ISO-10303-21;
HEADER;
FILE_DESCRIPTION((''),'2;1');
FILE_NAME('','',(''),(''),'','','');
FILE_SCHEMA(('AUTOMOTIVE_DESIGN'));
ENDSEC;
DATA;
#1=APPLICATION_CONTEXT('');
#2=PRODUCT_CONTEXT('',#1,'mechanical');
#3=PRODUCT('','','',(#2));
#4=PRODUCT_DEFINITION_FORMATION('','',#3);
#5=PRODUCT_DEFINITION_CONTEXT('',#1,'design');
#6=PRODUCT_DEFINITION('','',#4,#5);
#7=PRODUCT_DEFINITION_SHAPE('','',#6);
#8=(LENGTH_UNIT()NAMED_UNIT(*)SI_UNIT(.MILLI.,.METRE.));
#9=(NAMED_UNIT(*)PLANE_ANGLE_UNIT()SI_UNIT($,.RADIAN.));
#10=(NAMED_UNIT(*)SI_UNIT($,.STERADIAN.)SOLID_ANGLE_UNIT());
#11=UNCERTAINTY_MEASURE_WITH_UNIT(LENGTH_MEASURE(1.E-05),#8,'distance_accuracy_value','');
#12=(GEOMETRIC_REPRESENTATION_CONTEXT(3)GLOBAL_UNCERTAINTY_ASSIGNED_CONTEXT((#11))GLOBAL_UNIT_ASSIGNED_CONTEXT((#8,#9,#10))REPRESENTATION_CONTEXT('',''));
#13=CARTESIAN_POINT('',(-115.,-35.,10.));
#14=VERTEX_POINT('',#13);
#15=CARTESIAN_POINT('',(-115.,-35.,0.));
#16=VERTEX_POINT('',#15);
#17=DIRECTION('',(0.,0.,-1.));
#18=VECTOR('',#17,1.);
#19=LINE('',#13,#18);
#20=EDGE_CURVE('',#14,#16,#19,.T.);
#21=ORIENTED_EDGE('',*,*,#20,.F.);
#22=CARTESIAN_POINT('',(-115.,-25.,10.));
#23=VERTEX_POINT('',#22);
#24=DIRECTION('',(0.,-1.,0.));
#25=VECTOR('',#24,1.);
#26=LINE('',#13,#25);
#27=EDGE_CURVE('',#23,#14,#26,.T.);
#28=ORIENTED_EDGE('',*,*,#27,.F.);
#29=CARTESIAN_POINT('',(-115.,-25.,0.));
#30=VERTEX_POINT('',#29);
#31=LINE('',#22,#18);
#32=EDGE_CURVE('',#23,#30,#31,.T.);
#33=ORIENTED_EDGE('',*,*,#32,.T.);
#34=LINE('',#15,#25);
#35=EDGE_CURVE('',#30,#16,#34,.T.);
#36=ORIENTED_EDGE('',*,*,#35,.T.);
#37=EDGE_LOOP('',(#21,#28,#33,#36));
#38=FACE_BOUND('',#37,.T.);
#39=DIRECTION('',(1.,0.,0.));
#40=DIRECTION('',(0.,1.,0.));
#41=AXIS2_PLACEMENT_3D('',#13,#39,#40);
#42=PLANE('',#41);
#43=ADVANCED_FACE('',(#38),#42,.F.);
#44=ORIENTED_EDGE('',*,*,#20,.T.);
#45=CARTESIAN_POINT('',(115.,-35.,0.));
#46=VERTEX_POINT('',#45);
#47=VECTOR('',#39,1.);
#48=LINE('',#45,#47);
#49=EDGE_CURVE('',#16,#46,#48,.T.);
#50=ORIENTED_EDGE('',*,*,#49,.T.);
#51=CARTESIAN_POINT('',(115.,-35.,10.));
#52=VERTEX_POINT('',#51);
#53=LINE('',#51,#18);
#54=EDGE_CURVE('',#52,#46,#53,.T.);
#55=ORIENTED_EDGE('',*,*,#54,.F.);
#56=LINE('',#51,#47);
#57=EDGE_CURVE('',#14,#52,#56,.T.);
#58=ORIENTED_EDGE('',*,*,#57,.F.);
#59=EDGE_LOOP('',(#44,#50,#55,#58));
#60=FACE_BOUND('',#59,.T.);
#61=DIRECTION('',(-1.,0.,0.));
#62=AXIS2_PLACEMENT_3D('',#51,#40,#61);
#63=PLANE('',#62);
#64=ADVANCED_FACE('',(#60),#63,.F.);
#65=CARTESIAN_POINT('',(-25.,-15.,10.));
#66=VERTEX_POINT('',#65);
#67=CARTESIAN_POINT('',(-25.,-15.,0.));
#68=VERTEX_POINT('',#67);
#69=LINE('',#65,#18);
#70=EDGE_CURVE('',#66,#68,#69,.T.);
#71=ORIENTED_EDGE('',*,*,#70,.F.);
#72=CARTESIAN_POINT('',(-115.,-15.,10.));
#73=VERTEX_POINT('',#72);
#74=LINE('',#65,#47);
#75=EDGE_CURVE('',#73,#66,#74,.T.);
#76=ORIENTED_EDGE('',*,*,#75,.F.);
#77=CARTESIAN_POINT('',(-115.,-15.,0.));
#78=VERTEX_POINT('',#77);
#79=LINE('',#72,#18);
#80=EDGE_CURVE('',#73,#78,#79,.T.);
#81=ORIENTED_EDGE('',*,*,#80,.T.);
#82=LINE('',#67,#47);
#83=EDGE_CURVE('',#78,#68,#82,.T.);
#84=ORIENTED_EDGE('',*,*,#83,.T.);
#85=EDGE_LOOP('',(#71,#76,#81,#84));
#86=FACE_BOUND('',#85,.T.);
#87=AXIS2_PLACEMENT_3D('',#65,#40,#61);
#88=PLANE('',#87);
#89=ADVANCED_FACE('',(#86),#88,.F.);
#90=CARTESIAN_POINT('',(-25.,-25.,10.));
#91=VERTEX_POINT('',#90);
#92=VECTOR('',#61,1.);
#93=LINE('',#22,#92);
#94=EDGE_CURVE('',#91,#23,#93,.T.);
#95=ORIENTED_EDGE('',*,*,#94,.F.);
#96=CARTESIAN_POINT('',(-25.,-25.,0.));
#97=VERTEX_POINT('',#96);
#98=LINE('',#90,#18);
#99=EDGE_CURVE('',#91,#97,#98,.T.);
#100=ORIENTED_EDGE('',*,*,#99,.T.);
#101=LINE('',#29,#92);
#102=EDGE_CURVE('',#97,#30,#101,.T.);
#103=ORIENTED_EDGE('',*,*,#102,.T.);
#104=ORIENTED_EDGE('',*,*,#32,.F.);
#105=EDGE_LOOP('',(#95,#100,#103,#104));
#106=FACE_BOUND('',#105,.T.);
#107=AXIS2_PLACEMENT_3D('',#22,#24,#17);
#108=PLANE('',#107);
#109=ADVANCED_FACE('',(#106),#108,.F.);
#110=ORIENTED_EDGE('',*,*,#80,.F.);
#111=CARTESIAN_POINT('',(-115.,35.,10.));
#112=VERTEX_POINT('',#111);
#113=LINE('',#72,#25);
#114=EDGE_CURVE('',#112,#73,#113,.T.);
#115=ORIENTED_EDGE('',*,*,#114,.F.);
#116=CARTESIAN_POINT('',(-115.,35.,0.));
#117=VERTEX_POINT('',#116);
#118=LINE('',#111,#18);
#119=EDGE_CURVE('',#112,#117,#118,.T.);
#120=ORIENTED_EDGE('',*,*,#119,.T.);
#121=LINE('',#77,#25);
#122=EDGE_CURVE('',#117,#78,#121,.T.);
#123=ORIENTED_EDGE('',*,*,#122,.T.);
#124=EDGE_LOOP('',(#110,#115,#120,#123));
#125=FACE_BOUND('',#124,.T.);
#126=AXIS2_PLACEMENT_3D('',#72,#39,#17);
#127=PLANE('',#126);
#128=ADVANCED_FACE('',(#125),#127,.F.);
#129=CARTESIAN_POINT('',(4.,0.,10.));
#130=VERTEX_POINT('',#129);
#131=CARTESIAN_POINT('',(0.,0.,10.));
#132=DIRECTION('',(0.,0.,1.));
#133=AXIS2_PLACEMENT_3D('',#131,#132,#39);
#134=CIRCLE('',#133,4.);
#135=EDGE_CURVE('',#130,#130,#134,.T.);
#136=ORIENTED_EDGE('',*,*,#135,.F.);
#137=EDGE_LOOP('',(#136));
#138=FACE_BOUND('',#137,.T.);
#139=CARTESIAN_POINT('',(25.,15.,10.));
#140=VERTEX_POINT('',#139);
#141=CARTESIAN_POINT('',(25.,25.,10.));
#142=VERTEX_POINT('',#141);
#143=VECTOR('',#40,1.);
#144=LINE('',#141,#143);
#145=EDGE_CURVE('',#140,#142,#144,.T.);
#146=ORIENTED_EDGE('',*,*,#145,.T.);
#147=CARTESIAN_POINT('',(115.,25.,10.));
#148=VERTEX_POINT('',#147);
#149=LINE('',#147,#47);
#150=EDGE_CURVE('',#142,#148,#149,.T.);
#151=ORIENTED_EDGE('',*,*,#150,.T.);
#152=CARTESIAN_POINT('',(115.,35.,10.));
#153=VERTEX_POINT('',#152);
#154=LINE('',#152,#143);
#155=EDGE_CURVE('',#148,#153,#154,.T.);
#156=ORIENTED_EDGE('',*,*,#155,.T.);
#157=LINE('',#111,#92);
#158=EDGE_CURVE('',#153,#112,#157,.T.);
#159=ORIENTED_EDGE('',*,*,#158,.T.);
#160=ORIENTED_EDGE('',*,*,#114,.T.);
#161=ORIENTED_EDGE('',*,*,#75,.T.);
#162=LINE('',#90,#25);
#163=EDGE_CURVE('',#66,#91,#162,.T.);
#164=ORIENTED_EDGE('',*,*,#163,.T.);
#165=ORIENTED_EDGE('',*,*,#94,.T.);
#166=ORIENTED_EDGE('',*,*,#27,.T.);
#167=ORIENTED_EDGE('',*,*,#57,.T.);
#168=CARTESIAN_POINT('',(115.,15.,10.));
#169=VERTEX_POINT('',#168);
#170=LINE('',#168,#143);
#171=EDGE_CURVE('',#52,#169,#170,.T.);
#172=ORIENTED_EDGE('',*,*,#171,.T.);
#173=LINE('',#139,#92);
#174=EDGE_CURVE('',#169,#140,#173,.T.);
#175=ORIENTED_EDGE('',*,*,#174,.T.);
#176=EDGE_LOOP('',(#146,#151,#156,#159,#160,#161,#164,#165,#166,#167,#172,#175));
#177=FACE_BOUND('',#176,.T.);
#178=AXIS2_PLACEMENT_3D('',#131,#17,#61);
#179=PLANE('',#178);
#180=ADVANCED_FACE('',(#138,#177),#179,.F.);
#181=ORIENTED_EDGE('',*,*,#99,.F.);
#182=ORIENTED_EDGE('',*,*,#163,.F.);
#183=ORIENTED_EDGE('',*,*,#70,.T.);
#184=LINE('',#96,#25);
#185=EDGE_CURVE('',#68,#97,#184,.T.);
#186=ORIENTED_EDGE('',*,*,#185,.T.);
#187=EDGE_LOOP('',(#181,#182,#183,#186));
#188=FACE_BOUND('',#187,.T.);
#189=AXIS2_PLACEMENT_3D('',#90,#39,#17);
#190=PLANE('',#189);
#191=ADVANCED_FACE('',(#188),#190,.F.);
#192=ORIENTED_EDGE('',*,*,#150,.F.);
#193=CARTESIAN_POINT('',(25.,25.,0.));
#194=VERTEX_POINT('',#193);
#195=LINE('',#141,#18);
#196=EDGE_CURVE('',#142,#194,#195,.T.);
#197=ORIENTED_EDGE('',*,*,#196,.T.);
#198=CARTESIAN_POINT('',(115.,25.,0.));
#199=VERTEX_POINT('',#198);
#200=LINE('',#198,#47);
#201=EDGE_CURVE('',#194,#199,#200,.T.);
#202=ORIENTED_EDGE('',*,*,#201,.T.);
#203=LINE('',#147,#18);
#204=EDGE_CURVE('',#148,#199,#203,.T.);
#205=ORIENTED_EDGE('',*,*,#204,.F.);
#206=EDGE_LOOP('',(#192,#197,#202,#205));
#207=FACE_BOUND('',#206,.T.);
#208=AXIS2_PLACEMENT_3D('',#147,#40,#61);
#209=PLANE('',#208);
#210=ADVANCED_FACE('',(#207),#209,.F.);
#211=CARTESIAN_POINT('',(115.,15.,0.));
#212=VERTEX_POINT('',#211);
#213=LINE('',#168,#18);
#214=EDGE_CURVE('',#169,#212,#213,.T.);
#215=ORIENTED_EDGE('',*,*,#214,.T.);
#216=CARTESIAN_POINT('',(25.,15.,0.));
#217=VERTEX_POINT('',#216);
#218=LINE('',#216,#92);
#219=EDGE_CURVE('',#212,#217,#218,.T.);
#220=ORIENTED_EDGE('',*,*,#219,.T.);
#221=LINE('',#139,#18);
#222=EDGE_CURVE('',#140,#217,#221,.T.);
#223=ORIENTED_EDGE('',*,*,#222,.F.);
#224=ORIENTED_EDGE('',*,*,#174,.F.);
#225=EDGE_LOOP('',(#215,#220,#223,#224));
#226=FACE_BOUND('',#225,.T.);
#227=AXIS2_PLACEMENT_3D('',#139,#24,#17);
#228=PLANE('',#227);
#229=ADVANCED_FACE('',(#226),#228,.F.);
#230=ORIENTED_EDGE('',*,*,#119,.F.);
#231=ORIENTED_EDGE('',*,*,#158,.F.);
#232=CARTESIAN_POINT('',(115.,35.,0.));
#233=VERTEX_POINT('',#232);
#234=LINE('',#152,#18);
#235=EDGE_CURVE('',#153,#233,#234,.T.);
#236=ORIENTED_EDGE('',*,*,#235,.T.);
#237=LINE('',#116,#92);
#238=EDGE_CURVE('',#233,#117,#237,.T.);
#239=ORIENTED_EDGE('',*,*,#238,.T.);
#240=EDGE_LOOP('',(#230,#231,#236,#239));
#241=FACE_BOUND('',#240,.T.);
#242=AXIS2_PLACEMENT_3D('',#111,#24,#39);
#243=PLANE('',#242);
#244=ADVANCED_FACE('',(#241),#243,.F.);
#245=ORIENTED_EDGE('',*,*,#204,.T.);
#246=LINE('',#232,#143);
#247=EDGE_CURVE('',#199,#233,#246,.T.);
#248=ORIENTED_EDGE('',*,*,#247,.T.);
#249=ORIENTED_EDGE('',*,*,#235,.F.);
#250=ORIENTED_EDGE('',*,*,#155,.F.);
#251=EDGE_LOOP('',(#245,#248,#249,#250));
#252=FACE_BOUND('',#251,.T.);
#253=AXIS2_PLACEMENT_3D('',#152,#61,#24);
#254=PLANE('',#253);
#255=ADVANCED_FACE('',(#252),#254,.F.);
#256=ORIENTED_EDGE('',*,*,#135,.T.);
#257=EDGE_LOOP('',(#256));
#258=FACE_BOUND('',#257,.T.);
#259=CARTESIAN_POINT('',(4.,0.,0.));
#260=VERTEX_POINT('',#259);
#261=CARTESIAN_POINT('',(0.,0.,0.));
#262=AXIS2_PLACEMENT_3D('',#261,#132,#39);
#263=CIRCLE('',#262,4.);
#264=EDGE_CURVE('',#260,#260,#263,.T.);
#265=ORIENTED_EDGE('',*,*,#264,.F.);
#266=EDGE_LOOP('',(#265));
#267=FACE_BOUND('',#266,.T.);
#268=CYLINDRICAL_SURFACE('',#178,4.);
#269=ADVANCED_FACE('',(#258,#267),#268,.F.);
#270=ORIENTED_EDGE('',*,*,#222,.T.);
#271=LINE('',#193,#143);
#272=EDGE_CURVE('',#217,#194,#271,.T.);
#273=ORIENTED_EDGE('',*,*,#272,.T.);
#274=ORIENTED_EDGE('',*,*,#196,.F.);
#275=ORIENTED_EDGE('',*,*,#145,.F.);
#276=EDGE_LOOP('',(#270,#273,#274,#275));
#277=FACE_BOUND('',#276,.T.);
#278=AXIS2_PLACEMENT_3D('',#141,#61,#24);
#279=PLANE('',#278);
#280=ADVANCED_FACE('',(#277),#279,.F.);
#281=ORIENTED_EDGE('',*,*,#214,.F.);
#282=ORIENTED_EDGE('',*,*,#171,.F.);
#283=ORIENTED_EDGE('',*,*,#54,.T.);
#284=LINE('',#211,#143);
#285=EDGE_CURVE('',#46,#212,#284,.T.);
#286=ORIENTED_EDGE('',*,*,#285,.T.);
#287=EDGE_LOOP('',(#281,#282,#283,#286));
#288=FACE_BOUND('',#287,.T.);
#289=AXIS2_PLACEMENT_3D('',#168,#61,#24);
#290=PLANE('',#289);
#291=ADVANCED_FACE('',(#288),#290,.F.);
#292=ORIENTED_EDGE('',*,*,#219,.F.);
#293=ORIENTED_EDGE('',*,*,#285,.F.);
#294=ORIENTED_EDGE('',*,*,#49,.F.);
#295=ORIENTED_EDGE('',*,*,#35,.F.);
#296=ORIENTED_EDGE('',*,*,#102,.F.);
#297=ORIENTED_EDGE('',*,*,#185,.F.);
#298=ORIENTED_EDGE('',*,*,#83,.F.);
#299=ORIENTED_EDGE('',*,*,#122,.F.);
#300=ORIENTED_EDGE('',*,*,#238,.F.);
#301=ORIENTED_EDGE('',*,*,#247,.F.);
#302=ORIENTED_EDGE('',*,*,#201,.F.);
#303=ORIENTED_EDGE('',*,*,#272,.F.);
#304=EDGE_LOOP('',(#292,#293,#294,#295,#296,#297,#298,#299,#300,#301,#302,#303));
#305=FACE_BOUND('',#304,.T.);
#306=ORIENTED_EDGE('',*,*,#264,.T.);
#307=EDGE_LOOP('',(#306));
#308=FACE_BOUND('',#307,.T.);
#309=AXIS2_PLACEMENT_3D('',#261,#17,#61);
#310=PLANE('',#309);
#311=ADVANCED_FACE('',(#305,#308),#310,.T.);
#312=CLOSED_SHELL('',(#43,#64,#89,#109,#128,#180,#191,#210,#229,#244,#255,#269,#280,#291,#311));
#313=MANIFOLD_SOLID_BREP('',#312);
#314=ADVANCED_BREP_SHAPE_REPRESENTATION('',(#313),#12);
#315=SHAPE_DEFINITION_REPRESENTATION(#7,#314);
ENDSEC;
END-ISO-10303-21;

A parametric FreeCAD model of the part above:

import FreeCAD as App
import Part
import Sketcher
Q = App.Units.Quantity

doc = App.newDocument("Part")
body = doc.addObject("PartDesign::Body", "Body")

# Sketch on XY plane
sketch1 = body.newObject("Sketcher::SketchObject", "Sketch")
sketch1.AttachmentSupport = (doc.getObject("XY_Plane"), [""])
sketch1.MapMode = "FlatFace"
sketch1.addGeometry([
    Part.LineSegment(App.Vector(115, 35, 0), App.Vector(-115, 35, 0)),  # 0
    Part.LineSegment(App.Vector(-115, 35, 0), App.Vector(-115, -15, 0)),  # 1
    Part.LineSegment(App.Vector(-115, -15, 0), App.Vector(-25, -15, 0)),  # 2
    Part.LineSegment(App.Vector(-25, -15, 0), App.Vector(-25, -25, 0)),  # 3
    Part.LineSegment(App.Vector(-25, -25, 0), App.Vector(-115, -25, 0)),  # 4
    Part.LineSegment(App.Vector(-115, -25, 0), App.Vector(-115, -35, 0)),  # 5
    Part.LineSegment(App.Vector(-115, -35, 0), App.Vector(115, -35, 0)),  # 6
    Part.LineSegment(App.Vector(115, -35, 0), App.Vector(115, 15, 0)),  # 7
    Part.LineSegment(App.Vector(115, 15, 0), App.Vector(25, 15, 0)),  # 8
    Part.LineSegment(App.Vector(25, 15, 0), App.Vector(25, 25, 0)),  # 9
    Part.LineSegment(App.Vector(25, 25, 0), App.Vector(115, 25, 0)),  # 10
    Part.LineSegment(App.Vector(115, 25, 0), App.Vector(115, 35, 0)),  # 11
    Part.Circle(App.Vector(0, 0, 0), App.Vector(0, 0, 1), 4),  # 12
], False)
sketch1.addConstraint([
    Sketcher.Constraint("Coincident", 0, 2, 1, 1),
    Sketcher.Constraint("Coincident", 1, 2, 2, 1),
    Sketcher.Constraint("Coincident", 2, 2, 3, 1),
    Sketcher.Constraint("Coincident", 3, 2, 4, 1),
    Sketcher.Constraint("Coincident", 4, 2, 5, 1),
    Sketcher.Constraint("Coincident", 5, 2, 6, 1),
    Sketcher.Constraint("Coincident", 6, 2, 7, 1),
    Sketcher.Constraint("Coincident", 7, 2, 8, 1),
    Sketcher.Constraint("Coincident", 8, 2, 9, 1),
    Sketcher.Constraint("Coincident", 9, 2, 10, 1),
    Sketcher.Constraint("Coincident", 10, 2, 11, 1),
    Sketcher.Constraint("Coincident", 11, 2, 0, 1),
    Sketcher.Constraint("Horizontal", 0),
    Sketcher.Constraint("Vertical", 1),
    Sketcher.Constraint("Horizontal", 2),
    Sketcher.Constraint("Vertical", 3),
    Sketcher.Constraint("Horizontal", 4),
    Sketcher.Constraint("Vertical", 5),
    Sketcher.Constraint("Horizontal", 6),
    Sketcher.Constraint("Vertical", 7),
    Sketcher.Constraint("Horizontal", 8),
    Sketcher.Constraint("Vertical", 9),
    Sketcher.Constraint("Horizontal", 10),
    Sketcher.Constraint("Vertical", 11),
    Sketcher.Constraint("Coincident", 12, 3, -1, 1),
    Sketcher.Constraint("Symmetric", 0, 2, 6, 2, -1, 1),
    Sketcher.Constraint("Symmetric", 2, 2, 8, 2, -1, 1),
    Sketcher.Constraint("Symmetric", 4, 2, 10, 2, -1, 1),
    Sketcher.Constraint("Vertical", 1, 2, 4, 2),
    Sketcher.Constraint("Equal", 3, 5),
    Sketcher.Constraint("Diameter", 12, Q("8 mm")),
    Sketcher.Constraint("DistanceX", 0, 2, 0, 1, Q("230 mm")),
    Sketcher.Constraint("DistanceX", 2, 1, 2, 2, Q("90 mm")),
    Sketcher.Constraint("DistanceY", 1, 2, 1, 1, Q("50 mm")),
    Sketcher.Constraint("DistanceY", 3, 2, 3, 1, Q("10 mm")),
])
pad1 = body.newObject("PartDesign::Pad", "Pad")
pad1.Profile = sketch1
pad1.Length = 10

doc.recompute()
